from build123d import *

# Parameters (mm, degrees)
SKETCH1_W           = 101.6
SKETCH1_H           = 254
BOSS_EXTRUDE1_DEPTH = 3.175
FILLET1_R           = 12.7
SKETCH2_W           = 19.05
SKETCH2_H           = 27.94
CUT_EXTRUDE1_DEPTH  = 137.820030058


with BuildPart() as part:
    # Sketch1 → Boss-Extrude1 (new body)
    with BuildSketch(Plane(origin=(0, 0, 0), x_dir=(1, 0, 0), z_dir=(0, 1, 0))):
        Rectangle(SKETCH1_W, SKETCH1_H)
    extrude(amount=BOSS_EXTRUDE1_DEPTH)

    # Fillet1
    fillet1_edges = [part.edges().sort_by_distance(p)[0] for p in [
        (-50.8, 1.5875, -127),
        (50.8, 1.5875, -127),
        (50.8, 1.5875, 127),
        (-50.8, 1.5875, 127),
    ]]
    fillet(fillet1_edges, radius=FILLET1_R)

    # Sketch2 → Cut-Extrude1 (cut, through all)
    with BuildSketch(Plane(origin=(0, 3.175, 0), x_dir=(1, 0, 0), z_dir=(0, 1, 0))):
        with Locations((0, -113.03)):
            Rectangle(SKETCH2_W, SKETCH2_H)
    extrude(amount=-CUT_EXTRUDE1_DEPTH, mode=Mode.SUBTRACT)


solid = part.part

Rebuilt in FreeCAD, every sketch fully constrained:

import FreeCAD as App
import Part
import Sketcher
from FreeCAD import Vector
Q = App.Units.Quantity


def edges_at(feature, points):
    """Names of the edges that pass closest to the given points."""
    edges = feature.Shape.Edges
    near = lambda p: min(range(len(edges)), key=lambda i: edges[i].distToShape(Part.Vertex(*p))[0])
    return sorted({f"Edge{near(p) + 1}" for p in points})


def add_polygon(sketch, points):
    """Adds a closed chain of lines whose ends are joined by coincident constraints."""
    first, n = sketch.GeometryCount, len(points)
    for a, b in zip(points, points[1:] + points[:1]):
        sketch.addGeometry(Part.LineSegment(App.Vector(*a, 0), App.Vector(*b, 0)), False)
    for i in range(n):
        sketch.addConstraint(Sketcher.Constraint("Coincident", first + i, 2, first + (i + 1) % n, 1))

doc = App.newDocument("Part")
body = doc.addObject("PartDesign::Body", "Body")

# Sketch on XZ plane
sketch1 = doc.addObject("Sketcher::SketchObject", "Sketch")
body.addObject(sketch1)
sketch1.AttachmentSupport = (doc.XZ_Plane, [""])
sketch1.MapMode = "FlatFace"
add_polygon(sketch1, [(-50.8, -127), (-50.8, 127), (50.8, 127), (50.8, -127)])  # lines 0-3
sketch1.addConstraint(Sketcher.Constraint("Vertical", 0))
sketch1.addConstraint(Sketcher.Constraint("Horizontal", 1))
sketch1.addConstraint(Sketcher.Constraint("Vertical", 2))
sketch1.addConstraint(Sketcher.Constraint("Horizontal", 3))
sketch1.addConstraint(Sketcher.Constraint("Symmetric", 0, 2, 2, 2, -1, 1))
sketch1.addConstraint(Sketcher.Constraint("DistanceX", 1, 1, 1, 2, Q("4 in")))
sketch1.addConstraint(Sketcher.Constraint("DistanceY", 0, 1, 0, 2, Q("10 in")))
pad1 = doc.addObject("PartDesign::Pad", "Pad")
body.addObject(pad1)
pad1.Profile = sketch1
pad1.Length = Q("0.125 in")
pad1.Reversed = True
doc.recompute()

fillet = doc.addObject("PartDesign::Fillet", "Fillet")
body.addObject(fillet)
fillet.Base = (pad1, edges_at(pad1, [
    (-50.8, 1.587, -127),
    (50.8, 1.587, -127),
    (50.8, 1.587, 127),
    (-50.8, 1.587, 127),
]))
fillet.Radius = Q("0.5 in")

# Sketch on XZ plane
sketch2 = doc.addObject("Sketcher::SketchObject", "Sketch001")
body.addObject(sketch2)
sketch2.AttachmentSupport = (doc.XZ_Plane, [""])
sketch2.MapMode = "FlatFace"
sketch2.AttachmentOffset = App.Placement(Vector(0, 0, -0.125 * 25.4), App.Rotation())
add_polygon(sketch2, [(-9.525, 99.06), (-9.525, 127), (9.525, 127), (9.525, 99.06)])  # lines 0-3
sketch2.addConstraint(Sketcher.Constraint("Vertical", 0))
sketch2.addConstraint(Sketcher.Constraint("Horizontal", 1))
sketch2.addConstraint(Sketcher.Constraint("Vertical", 2))
sketch2.addConstraint(Sketcher.Constraint("Horizontal", 3))
sketch2.addConstraint(Sketcher.Constraint("DistanceY", 0, 1, 0, 2, Q("1.1 in")))
sketch2.addConstraint(Sketcher.Constraint("DistanceY", -1, 1, 0, 2, Q("5 in")))
sketch2.addConstraint(Sketcher.Constraint("DistanceX", 1, 1, 1, 2, Q("0.75 in")))
sketch2.addConstraint(Sketcher.Constraint("DistanceX", 0, 2, -1, 1, Q("0.375 in")))
pocket1 = doc.addObject("PartDesign::Pocket", "Pocket")
body.addObject(pocket1)
pocket1.Profile = sketch2
pocket1.Type = "ThroughAll"
pocket1.Reversed = True

doc.recompute()
